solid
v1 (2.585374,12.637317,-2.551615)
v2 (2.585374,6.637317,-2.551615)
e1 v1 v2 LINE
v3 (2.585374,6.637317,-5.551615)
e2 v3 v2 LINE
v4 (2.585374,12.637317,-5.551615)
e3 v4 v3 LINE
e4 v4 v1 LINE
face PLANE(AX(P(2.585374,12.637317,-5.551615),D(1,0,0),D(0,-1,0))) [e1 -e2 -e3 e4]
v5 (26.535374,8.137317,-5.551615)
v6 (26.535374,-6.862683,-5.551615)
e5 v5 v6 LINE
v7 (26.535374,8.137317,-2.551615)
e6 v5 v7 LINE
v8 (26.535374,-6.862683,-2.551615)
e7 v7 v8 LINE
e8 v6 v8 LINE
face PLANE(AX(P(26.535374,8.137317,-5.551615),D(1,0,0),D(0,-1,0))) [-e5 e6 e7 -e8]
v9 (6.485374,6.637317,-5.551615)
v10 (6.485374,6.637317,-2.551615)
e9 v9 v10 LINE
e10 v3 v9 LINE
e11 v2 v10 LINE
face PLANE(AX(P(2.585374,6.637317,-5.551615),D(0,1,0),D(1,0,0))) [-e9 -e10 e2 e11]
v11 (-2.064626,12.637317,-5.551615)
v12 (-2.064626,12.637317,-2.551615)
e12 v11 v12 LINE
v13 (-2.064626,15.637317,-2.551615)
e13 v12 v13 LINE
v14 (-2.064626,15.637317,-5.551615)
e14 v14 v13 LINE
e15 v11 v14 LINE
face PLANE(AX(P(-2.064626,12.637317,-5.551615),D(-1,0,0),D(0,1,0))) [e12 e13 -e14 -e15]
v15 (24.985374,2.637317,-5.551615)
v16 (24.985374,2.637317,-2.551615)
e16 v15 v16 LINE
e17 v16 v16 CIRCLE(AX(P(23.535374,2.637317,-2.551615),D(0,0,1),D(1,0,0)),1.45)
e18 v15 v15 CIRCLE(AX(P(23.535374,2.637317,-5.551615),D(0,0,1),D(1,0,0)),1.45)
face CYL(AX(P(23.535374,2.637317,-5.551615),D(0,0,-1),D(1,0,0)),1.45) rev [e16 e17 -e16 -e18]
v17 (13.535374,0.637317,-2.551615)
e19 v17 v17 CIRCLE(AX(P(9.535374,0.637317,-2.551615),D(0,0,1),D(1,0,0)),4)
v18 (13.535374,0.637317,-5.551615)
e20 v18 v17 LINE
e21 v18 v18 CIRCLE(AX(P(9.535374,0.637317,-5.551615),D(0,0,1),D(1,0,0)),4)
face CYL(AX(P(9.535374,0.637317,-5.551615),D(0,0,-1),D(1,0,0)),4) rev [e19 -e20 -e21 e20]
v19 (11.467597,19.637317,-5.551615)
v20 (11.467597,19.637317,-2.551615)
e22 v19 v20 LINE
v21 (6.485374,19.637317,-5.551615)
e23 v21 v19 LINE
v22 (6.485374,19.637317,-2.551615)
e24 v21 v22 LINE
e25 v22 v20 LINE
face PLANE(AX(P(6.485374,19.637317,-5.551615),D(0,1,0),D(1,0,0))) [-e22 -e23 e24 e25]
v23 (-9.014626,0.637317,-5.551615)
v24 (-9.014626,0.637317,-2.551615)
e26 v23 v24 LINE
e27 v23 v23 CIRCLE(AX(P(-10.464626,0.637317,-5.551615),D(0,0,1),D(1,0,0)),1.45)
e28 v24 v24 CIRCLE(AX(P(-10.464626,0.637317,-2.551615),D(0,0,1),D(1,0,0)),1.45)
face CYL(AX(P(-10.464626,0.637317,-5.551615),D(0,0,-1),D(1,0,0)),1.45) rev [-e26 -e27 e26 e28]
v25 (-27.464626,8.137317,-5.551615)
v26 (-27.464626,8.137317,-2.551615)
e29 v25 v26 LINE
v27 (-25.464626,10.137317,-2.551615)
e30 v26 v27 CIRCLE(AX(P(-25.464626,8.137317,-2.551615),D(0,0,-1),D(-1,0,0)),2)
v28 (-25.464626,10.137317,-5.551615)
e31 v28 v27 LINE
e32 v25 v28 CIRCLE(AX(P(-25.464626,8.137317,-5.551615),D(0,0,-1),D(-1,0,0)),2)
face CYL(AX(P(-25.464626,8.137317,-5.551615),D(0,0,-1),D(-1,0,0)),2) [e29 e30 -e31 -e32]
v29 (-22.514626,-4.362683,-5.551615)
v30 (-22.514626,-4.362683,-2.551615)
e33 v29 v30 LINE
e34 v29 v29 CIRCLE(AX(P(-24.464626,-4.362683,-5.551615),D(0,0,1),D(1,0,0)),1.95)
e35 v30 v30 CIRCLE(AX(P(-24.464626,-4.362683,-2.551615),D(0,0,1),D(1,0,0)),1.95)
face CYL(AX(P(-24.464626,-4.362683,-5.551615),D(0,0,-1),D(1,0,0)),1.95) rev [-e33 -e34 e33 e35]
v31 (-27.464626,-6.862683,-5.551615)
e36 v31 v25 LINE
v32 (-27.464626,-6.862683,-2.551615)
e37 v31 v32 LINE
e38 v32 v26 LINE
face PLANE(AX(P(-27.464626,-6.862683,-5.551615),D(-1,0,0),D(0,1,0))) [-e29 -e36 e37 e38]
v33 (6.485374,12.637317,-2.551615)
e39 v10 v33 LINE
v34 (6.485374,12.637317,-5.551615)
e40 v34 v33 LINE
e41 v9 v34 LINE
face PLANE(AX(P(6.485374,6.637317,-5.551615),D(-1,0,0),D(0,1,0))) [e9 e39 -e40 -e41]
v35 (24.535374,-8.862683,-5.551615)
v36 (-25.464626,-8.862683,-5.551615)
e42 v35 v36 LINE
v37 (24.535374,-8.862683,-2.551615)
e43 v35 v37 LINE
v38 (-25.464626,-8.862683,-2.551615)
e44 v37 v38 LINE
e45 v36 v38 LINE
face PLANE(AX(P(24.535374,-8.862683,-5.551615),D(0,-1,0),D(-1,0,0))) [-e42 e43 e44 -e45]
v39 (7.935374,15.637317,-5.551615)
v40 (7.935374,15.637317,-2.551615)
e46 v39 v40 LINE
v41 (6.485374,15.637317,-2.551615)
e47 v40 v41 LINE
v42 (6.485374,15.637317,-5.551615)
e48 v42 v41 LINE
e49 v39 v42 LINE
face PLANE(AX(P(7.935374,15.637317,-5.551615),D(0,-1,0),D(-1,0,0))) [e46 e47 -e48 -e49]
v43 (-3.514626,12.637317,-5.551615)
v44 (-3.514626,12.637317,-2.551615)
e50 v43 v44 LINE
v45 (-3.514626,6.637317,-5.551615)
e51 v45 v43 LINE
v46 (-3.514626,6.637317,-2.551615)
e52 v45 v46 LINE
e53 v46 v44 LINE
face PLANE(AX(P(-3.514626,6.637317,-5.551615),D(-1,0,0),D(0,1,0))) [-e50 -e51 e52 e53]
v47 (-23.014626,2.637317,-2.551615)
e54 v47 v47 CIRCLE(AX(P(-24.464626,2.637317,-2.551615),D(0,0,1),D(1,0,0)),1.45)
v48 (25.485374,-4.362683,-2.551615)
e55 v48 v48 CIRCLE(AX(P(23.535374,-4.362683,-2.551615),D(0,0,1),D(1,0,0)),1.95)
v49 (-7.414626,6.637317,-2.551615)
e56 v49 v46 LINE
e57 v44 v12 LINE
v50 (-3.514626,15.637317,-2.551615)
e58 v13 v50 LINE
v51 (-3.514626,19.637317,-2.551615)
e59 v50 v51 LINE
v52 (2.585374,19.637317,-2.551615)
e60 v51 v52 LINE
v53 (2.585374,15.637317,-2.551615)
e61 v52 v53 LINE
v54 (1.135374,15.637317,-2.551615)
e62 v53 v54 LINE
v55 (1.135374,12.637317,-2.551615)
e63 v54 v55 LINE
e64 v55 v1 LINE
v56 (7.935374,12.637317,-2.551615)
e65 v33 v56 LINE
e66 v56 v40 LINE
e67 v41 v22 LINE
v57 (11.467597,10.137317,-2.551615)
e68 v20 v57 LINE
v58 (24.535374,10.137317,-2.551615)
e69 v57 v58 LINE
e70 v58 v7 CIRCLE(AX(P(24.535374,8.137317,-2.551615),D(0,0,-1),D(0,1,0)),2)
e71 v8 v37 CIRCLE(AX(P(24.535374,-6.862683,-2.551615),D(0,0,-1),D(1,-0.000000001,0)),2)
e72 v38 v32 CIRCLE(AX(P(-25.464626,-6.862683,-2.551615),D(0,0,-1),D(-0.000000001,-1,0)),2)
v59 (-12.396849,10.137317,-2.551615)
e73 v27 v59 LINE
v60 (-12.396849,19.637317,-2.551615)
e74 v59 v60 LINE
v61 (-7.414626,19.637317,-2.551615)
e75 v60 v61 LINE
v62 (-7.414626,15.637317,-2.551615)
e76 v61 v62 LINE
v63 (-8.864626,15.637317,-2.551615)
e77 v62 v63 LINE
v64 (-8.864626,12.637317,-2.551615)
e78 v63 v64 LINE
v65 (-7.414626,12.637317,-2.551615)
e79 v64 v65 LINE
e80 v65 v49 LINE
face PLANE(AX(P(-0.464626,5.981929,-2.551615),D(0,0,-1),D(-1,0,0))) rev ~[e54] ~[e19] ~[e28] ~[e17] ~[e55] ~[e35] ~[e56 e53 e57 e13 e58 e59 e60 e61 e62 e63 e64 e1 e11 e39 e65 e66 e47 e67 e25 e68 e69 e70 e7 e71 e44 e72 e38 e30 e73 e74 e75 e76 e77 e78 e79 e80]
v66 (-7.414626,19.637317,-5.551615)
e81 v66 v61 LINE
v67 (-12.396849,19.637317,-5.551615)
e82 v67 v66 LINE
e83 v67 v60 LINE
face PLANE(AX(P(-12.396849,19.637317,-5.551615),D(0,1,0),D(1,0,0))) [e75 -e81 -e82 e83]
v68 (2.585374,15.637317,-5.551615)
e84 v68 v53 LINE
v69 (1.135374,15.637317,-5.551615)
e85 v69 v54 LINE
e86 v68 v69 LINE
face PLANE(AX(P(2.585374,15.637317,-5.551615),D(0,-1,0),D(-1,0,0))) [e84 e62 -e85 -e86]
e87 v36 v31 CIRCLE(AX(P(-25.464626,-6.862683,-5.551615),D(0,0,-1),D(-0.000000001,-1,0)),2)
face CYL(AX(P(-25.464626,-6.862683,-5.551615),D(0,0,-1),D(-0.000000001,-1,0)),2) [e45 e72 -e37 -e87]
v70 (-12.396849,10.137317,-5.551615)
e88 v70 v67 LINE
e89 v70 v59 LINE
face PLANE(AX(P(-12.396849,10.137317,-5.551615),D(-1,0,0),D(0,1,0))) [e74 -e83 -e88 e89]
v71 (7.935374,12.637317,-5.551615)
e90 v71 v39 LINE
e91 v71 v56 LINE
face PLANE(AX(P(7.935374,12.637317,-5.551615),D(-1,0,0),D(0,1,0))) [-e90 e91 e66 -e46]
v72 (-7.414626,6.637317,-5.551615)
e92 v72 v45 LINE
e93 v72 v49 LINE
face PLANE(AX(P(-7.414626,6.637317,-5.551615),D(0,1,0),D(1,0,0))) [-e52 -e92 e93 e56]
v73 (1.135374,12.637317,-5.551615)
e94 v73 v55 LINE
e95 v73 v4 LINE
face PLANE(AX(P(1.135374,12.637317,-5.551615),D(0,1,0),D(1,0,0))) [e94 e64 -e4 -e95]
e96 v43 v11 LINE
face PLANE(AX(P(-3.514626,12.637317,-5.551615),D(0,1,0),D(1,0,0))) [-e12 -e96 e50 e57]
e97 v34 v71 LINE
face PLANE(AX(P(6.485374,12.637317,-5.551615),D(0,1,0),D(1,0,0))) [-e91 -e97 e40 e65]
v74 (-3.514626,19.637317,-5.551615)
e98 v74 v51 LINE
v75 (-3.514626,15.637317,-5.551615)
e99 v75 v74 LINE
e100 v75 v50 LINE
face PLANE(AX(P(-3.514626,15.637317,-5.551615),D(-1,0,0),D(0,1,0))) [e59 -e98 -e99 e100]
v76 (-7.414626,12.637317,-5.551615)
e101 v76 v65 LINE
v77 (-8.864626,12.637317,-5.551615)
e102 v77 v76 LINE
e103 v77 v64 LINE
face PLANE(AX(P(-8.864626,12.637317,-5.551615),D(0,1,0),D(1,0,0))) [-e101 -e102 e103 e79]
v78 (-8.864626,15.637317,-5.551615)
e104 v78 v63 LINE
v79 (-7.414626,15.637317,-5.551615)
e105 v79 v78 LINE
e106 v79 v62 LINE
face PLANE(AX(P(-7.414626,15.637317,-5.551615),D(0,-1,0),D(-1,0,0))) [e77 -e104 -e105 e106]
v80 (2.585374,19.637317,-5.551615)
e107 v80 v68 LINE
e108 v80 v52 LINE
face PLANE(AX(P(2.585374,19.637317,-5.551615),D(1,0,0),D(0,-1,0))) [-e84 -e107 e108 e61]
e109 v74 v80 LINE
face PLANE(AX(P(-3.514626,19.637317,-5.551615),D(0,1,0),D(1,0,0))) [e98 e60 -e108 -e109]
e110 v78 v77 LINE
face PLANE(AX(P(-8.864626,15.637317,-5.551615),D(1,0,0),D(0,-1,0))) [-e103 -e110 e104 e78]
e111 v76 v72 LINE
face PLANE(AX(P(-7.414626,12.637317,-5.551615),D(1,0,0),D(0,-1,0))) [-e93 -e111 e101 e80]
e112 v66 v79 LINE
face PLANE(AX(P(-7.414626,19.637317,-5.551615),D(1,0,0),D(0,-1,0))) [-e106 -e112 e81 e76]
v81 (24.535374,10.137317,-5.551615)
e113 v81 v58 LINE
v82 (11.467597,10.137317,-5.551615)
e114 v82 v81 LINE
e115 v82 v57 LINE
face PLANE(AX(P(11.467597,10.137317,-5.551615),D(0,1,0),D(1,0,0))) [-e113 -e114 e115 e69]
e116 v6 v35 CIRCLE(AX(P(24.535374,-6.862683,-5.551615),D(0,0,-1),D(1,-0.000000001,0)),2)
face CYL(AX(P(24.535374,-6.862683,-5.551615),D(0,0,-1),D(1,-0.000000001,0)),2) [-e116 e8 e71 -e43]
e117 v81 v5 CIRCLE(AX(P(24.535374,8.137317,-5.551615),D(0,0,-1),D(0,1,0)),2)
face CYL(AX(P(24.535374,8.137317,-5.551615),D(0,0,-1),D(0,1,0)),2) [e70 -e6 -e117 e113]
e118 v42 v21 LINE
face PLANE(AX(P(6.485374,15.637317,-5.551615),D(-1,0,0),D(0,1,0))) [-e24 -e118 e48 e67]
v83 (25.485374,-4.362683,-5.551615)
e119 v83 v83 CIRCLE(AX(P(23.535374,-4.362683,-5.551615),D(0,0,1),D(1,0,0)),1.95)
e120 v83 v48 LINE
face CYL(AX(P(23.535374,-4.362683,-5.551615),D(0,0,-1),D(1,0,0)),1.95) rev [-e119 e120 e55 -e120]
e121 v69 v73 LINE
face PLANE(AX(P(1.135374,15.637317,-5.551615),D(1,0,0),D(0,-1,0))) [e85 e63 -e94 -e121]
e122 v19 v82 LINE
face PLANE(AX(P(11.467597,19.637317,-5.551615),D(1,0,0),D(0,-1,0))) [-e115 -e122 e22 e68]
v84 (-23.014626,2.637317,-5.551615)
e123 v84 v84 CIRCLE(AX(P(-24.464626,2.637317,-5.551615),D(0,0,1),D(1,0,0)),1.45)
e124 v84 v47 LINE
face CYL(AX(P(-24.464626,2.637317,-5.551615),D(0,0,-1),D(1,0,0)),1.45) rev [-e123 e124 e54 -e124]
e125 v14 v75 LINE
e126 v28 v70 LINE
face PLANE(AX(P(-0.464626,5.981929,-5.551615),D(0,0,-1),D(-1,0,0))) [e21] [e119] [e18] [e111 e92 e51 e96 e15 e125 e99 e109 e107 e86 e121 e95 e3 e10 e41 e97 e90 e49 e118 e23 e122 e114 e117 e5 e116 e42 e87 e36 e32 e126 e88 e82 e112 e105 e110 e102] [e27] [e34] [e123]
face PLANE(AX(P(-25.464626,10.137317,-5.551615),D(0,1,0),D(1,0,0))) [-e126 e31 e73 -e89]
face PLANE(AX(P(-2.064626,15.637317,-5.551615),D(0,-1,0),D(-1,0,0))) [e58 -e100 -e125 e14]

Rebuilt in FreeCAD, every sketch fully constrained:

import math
import FreeCAD as App
import Part
import Sketcher

V = App.Vector
Q = App.Units.Quantity

doc = App.newDocument("Part")
body = doc.addObject("PartDesign::Body", "Body")

# Sketch on XY plane
sketch1 = doc.addObject("Sketcher::SketchObject", "Sketch")
body.addObject(sketch1)
sketch1.AttachmentSupport = (doc.XY_Plane, [""])
sketch1.MapMode = "FlatFace"
sketch1.AttachmentOffset = App.Placement(V(0, 0, -5.551615), App.Rotation())
sketch1.addGeometry([
    Part.LineSegment(V(-12.4, 10.1, 0), V(-25.5, 10.1, 0)),  # 0
    Part.ArcOfCircle(Part.Circle(V(-25.5, 8.1, 0), V(0, 0, 1), 2), math.radians(90), math.radians(180)),  # 1
    Part.LineSegment(V(-27.5, 8.1, 0), V(-27.5, -6.9, 0)),  # 2
    Part.ArcOfCircle(Part.Circle(V(-25.5, -6.9, 0), V(0, 0, 1), 2), math.radians(-180), math.radians(-90)),  # 3
    Part.LineSegment(V(-25.5, -8.9, 0), V(24.5, -8.9, 0)),  # 4
    Part.ArcOfCircle(Part.Circle(V(24.5, -6.9, 0), V(0, 0, 1), 2), math.radians(-90), math.radians(0)),  # 5
    Part.LineSegment(V(26.5, -6.9, 0), V(26.5, 8.1, 0)),  # 6
    Part.ArcOfCircle(Part.Circle(V(24.5, 8.1, 0), V(0, 0, 1), 2), math.radians(0), math.radians(90)),  # 7
    Part.LineSegment(V(24.5, 10.1, 0), V(11.5, 10.1, 0)),  # 8
    Part.LineSegment(V(11.5, 10.1, 0), V(11.5, 19.6, 0)),  # 9
    Part.LineSegment(V(11.5, 19.6, 0), V(6.5, 19.6, 0)),  # 10
    Part.LineSegment(V(6.5, 19.6, 0), V(6.5, 15.6, 0)),  # 11
    Part.LineSegment(V(6.5, 15.6, 0), V(7.9, 15.6, 0)),  # 12
    Part.LineSegment(V(7.9, 15.6, 0), V(7.9, 12.6, 0)),  # 13
    Part.LineSegment(V(7.9, 12.6, 0), V(6.5, 12.6, 0)),  # 14
    Part.LineSegment(V(6.5, 12.6, 0), V(6.5, 6.6, 0)),  # 15
    Part.LineSegment(V(6.5, 6.6, 0), V(2.6, 6.6, 0)),  # 16
    Part.LineSegment(V(2.6, 6.6, 0), V(2.6, 12.6, 0)),  # 17
    Part.LineSegment(V(2.6, 12.6, 0), V(1.1, 12.6, 0)),  # 18
    Part.LineSegment(V(1.1, 12.6, 0), V(1.1, 15.6, 0)),  # 19
    Part.LineSegment(V(1.1, 15.6, 0), V(2.6, 15.6, 0)),  # 20
    Part.LineSegment(V(2.6, 15.6, 0), V(2.6, 19.6, 0)),  # 21
    Part.LineSegment(V(2.6, 19.6, 0), V(-3.5, 19.6, 0)),  # 22
    Part.LineSegment(V(-3.5, 19.6, 0), V(-3.5, 15.6, 0)),  # 23
    Part.LineSegment(V(-3.5, 15.6, 0), V(-2.1, 15.6, 0)),  # 24
    Part.LineSegment(V(-2.1, 15.6, 0), V(-2.1, 12.6, 0)),  # 25
    Part.LineSegment(V(-2.1, 12.6, 0), V(-3.5, 12.6, 0)),  # 26
    Part.LineSegment(V(-3.5, 12.6, 0), V(-3.5, 6.6, 0)),  # 27
    Part.LineSegment(V(-3.5, 6.6, 0), V(-7.4, 6.6, 0)),  # 28
    Part.LineSegment(V(-7.4, 6.6, 0), V(-7.4, 12.6, 0)),  # 29
    Part.LineSegment(V(-7.4, 12.6, 0), V(-8.9, 12.6, 0)),  # 30
    Part.LineSegment(V(-8.9, 12.6, 0), V(-8.9, 15.6, 0)),  # 31
    Part.LineSegment(V(-8.9, 15.6, 0), V(-7.4, 15.6, 0)),  # 32
    Part.LineSegment(V(-7.4, 15.6, 0), V(-7.4, 19.6, 0)),  # 33
    Part.LineSegment(V(-7.4, 19.6, 0), V(-12.4, 19.6, 0)),  # 34
    Part.LineSegment(V(-12.4, 19.6, 0), V(-12.4, 10.1, 0)),  # 35
    Part.Circle(V(23.5, -4.4, 0), V(0, 0, 1), 1.9),  # 36
    Part.Circle(V(-24.5, -4.4, 0), V(0, 0, 1), 1.9),  # 37
    Part.Circle(V(9.5, 0.6, 0), V(0, 0, 1), 4),  # 38
    Part.Circle(V(23.5, 2.6, 0), V(0, 0, 1), 1.4),  # 39
    Part.Circle(V(-10.5, 0.6, 0), V(0, 0, 1), 1.4),  # 40
    Part.Circle(V(-24.5, 2.6, 0), V(0, 0, 1), 1.4),  # 41
], False)
sketch1.addConstraint([
    Sketcher.Constraint("Tangent", 0, 2, 1, 1),
    Sketcher.Constraint("Tangent", 1, 2, 2, 1),
    Sketcher.Constraint("Tangent", 2, 2, 3, 1),
    Sketcher.Constraint("Tangent", 3, 2, 4, 1),
    Sketcher.Constraint("Tangent", 4, 2, 5, 1),
    Sketcher.Constraint("Tangent", 5, 2, 6, 1),
    Sketcher.Constraint("Tangent", 6, 2, 7, 1),
    Sketcher.Constraint("Tangent", 7, 2, 8, 1),
    Sketcher.Constraint("Coincident", 8, 2, 9, 1),
    Sketcher.Constraint("Coincident", 9, 2, 10, 1),
    Sketcher.Constraint("Coincident", 10, 2, 11, 1),
    Sketcher.Constraint("Coincident", 11, 2, 12, 1),
    Sketcher.Constraint("Coincident", 12, 2, 13, 1),
    Sketcher.Constraint("Coincident", 13, 2, 14, 1),
    Sketcher.Constraint("Coincident", 14, 2, 15, 1),
    Sketcher.Constraint("Coincident", 15, 2, 16, 1),
    Sketcher.Constraint("Coincident", 16, 2, 17, 1),
    Sketcher.Constraint("Coincident", 17, 2, 18, 1),
    Sketcher.Constraint("Coincident", 18, 2, 19, 1),
    Sketcher.Constraint("Coincident", 19, 2, 20, 1),
    Sketcher.Constraint("Coincident", 20, 2, 21, 1),
    Sketcher.Constraint("Coincident", 21, 2, 22, 1),
    Sketcher.Constraint("Coincident", 22, 2, 23, 1),
    Sketcher.Constraint("Coincident", 23, 2, 24, 1),
    Sketcher.Constraint("Coincident", 24, 2, 25, 1),
    Sketcher.Constraint("Coincident", 25, 2, 26, 1),
    Sketcher.Constraint("Coincident", 26, 2, 27, 1),
    Sketcher.Constraint("Coincident", 27, 2, 28, 1),
    Sketcher.Constraint("Coincident", 28, 2, 29, 1),
    Sketcher.Constraint("Coincident", 29, 2, 30, 1),
    Sketcher.Constraint("Coincident", 30, 2, 31, 1),
    Sketcher.Constraint("Coincident", 31, 2, 32, 1),
    Sketcher.Constraint("Coincident", 32, 2, 33, 1),
    Sketcher.Constraint("Coincident", 33, 2, 34, 1),
    Sketcher.Constraint("Coincident", 34, 2, 35, 1),
    Sketcher.Constraint("Coincident", 35, 2, 0, 1),
    Sketcher.Constraint("Horizontal", 0),
    Sketcher.Constraint("Vertical", 2),
    Sketcher.Constraint("Horizontal", 4),
    Sketcher.Constraint("Vertical", 6),
    Sketcher.Constraint("Horizontal", 8),
    Sketcher.Constraint("Vertical", 9),
    Sketcher.Constraint("Horizontal", 10),
    Sketcher.Constraint("Vertical", 11),
    Sketcher.Constraint("Horizontal", 12),
    Sketcher.Constraint("Vertical", 13),
    Sketcher.Constraint("Horizontal", 14),
    Sketcher.Constraint("Vertical", 15),
    Sketcher.Constraint("Horizontal", 16),
    Sketcher.Constraint("Vertical", 17),
    Sketcher.Constraint("Horizontal", 18),
    Sketcher.Constraint("Vertical", 19),
    Sketcher.Constraint("Horizontal", 20),
    Sketcher.Constraint("Vertical", 21),
    Sketcher.Constraint("Horizontal", 22),
    Sketcher.Constraint("Vertical", 23),
    Sketcher.Constraint("Horizontal", 24),
    Sketcher.Constraint("Vertical", 25),
    Sketcher.Constraint("Horizontal", 26),
    Sketcher.Constraint("Vertical", 27),
    Sketcher.Constraint("Horizontal", 28),
    Sketcher.Constraint("Vertical", 29),
    Sketcher.Constraint("Horizontal", 30),
    Sketcher.Constraint("Vertical", 31),
    Sketcher.Constraint("Horizontal", 32),
    Sketcher.Constraint("Vertical", 33),
    Sketcher.Constraint("Horizontal", 34),
    Sketcher.Constraint("Vertical", 35),
    Sketcher.Constraint("Equal", 1, 3),
    Sketcher.Constraint("Equal", 3, 5),
    Sketcher.Constraint("Equal", 5, 7),
    Sketcher.Constraint("Equal", 36, 37),
    Sketcher.Constraint("Equal", 39, 40),
    Sketcher.Constraint("Equal", 40, 41),
    Sketcher.Constraint("Horizontal", 1, 3, 7, 3),
    Sketcher.Constraint("Horizontal", 36, 3, 37, 3),
    Sketcher.Constraint("Horizontal", 38, 3, 40, 3),
    Sketcher.Constraint("Horizontal", 39, 3, 41, 3),
    Sketcher.Constraint("Horizontal", 14, 2, 17, 2),
    Sketcher.Constraint("Horizontal", 12, 2, 19, 2),
    Sketcher.Constraint("Horizontal", 10, 2, 21, 2),
    Sketcher.Constraint("Horizontal", 20, 2, 23, 2),
    Sketcher.Constraint("Horizontal", 18, 2, 25, 2),
    Sketcher.Constraint("Horizontal", 16, 2, 27, 2),
    Sketcher.Constraint("Horizontal", 26, 2, 29, 2),
    Sketcher.Constraint("Horizontal", 24, 2, 31, 2),
    Sketcher.Constraint("Horizontal", 22, 2, 33, 2),
    Sketcher.Constraint("Vertical", 36, 3, 39, 3),
    Sketcher.Constraint("Vertical", 37, 3, 41, 3),
    Sketcher.Constraint("Vertical", 11, 2, 14, 2),
    Sketcher.Constraint("Vertical", 17, 2, 20, 2),
    Sketcher.Constraint("Vertical", 23, 2, 26, 2),
    Sketcher.Constraint("Vertical", 29, 2, 32, 2),
    Sketcher.Constraint("Equal", 0, 8),
    Sketcher.Constraint("Equal", 14, 18),
    Sketcher.Constraint("Equal", 20, 24),
    Sketcher.Constraint("Equal", 16, 28),
    Sketcher.Constraint("Equal", 26, 30),
    Sketcher.Constraint("Equal", 10, 34),
    Sketcher.Constraint("Diameter", 38, Q("8 mm")),
    Sketcher.Constraint("Radius", 1, Q("2 mm")),
    Sketcher.Constraint("Diameter", 36, Q("3.9 mm")),
    Sketcher.Constraint("Diameter", 39, Q("2.9 mm")),
    Sketcher.Constraint("DistanceX", 4, 1, 4, 2, Q("50 mm")),
    Sketcher.Constraint("DistanceY", 2, 2, 2, 1, Q("15 mm")),
    Sketcher.Constraint("DistanceY", 11, 2, 11, 1, Q("4 mm")),
    Sketcher.Constraint("DistanceY", 13, 2, 13, 1, Q("3 mm")),
    Sketcher.Constraint("DistanceY", 15, 2, 15, 1, Q("6 mm")),
    Sketcher.Constraint("DistanceX", 16, 2, 16, 1, Q("3.9 mm")),
    Sketcher.Constraint("DistanceX", 22, 2, 22, 1, Q("6.1 mm")),
    Sketcher.Constraint("DistanceY", 9, 1, 9, 2, Q("9.5 mm")),
    Sketcher.Constraint("DistanceX", 36, 3, 5, 3, Q("1 mm")),
    Sketcher.Constraint("DistanceX", 3, 3, 37, 3, Q("1 mm")),
    Sketcher.Constraint("DistanceX", 38, 3, 36, 3, Q("14 mm")),
    Sketcher.Constraint("DistanceY", 36, 3, 38, 3, Q("5 mm")),
    Sketcher.Constraint("DistanceY", 36, 3, 39, 3, Q("7 mm")),
    Sketcher.Constraint("DistanceX", 37, 3, 40, 3, Q("14 mm")),
    Sketcher.Constraint("DistanceY", 38, 3, 9, 2, Q("19 mm")),
    Sketcher.Constraint("DistanceX", 12, 1, 12, 2, Q("1.45 mm")),
    Sketcher.Constraint("DistanceX", 0, 2, 0, 1, Q("13.067777 mm")),
    Sketcher.Constraint("DistanceX", 34, 2, -1, 1, Q("12.396849 mm")),
    Sketcher.Constraint("DistanceY", -1, 1, 1, 3, Q("8.137317 mm")),
])
pad1 = doc.addObject("PartDesign::Pad", "Pad")
body.addObject(pad1)
pad1.Profile = sketch1
pad1.Length = 3

doc.recompute()
